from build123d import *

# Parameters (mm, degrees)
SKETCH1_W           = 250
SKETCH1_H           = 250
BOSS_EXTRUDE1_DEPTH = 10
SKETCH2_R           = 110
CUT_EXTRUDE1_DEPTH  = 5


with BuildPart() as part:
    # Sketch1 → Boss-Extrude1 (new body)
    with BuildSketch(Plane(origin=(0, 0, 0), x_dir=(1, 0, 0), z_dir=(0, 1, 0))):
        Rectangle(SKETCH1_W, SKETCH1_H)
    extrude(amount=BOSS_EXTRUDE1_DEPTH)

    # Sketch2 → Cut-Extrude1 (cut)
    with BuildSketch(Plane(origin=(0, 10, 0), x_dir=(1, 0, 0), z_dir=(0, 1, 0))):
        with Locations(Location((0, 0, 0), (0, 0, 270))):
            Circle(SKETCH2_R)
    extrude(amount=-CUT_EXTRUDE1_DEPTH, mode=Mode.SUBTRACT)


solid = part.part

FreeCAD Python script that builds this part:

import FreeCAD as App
import Part
import Sketcher


def add_polygon(sketch, points):
    """Adds a closed chain of lines whose ends are joined by coincident constraints."""
    first, n = sketch.GeometryCount, len(points)
    for a, b in zip(points, points[1:] + points[:1]):
        sketch.addGeometry(Part.LineSegment(App.Vector(*a, 0), App.Vector(*b, 0)), False)
    for i in range(n):
        sketch.addConstraint(Sketcher.Constraint("Coincident", first + i, 2, first + (i + 1) % n, 1))

doc = App.newDocument("Part")
body = doc.addObject("PartDesign::Body", "Body")

sketch1 = body.newObject("Sketcher::SketchObject", "Sketch")
sketch1.AttachmentSupport = (doc.getObject("XZ_Plane"), [""])
sketch1.MapMode = "FlatFace"
add_polygon(sketch1, [(-125, -125), (-125, 125), (125, 125), (125, -125)])
sketch1.addConstraint([
    Sketcher.Constraint("Vertical", 0),
    Sketcher.Constraint("Horizontal", 1),
    Sketcher.Constraint("Vertical", 2),
    Sketcher.Constraint("Horizontal", 3),
    Sketcher.Constraint("Symmetric", 0, 2, 2, 2, -1, 1),
    Sketcher.Constraint("Equal", 3, 0),
    Sketcher.Constraint("DistanceX", 1, 1, 1, 2, 250.0),
])
pad1 = body.newObject("PartDesign::Pad", "Pad")
pad1.Profile = sketch1
pad1.Length = 10
pad1.Reversed = True

sketch2 = body.newObject("Sketcher::SketchObject", "Sketch001")
sketch2.AttachmentSupport = (doc.getObject("XZ_Plane"), [""])
sketch2.MapMode = "FlatFace"
sketch2.AttachmentOffset = App.Placement(App.Vector(0, 0, -10), App.Rotation())
sketch2.addGeometry(Part.Circle(App.Vector(0, 0, 0), App.Vector(0, 0, 1), 110), False)
sketch2.addConstraint([
    Sketcher.Constraint("Coincident", 0, 3, -1, 1),
    Sketcher.Constraint("Diameter", 0, 220.0),
])
pocket1 = body.newObject("PartDesign::Pocket", "Pocket")
pocket1.Profile = sketch2
pocket1.Length = 5
pocket1.Reversed = True

doc.recompute()
